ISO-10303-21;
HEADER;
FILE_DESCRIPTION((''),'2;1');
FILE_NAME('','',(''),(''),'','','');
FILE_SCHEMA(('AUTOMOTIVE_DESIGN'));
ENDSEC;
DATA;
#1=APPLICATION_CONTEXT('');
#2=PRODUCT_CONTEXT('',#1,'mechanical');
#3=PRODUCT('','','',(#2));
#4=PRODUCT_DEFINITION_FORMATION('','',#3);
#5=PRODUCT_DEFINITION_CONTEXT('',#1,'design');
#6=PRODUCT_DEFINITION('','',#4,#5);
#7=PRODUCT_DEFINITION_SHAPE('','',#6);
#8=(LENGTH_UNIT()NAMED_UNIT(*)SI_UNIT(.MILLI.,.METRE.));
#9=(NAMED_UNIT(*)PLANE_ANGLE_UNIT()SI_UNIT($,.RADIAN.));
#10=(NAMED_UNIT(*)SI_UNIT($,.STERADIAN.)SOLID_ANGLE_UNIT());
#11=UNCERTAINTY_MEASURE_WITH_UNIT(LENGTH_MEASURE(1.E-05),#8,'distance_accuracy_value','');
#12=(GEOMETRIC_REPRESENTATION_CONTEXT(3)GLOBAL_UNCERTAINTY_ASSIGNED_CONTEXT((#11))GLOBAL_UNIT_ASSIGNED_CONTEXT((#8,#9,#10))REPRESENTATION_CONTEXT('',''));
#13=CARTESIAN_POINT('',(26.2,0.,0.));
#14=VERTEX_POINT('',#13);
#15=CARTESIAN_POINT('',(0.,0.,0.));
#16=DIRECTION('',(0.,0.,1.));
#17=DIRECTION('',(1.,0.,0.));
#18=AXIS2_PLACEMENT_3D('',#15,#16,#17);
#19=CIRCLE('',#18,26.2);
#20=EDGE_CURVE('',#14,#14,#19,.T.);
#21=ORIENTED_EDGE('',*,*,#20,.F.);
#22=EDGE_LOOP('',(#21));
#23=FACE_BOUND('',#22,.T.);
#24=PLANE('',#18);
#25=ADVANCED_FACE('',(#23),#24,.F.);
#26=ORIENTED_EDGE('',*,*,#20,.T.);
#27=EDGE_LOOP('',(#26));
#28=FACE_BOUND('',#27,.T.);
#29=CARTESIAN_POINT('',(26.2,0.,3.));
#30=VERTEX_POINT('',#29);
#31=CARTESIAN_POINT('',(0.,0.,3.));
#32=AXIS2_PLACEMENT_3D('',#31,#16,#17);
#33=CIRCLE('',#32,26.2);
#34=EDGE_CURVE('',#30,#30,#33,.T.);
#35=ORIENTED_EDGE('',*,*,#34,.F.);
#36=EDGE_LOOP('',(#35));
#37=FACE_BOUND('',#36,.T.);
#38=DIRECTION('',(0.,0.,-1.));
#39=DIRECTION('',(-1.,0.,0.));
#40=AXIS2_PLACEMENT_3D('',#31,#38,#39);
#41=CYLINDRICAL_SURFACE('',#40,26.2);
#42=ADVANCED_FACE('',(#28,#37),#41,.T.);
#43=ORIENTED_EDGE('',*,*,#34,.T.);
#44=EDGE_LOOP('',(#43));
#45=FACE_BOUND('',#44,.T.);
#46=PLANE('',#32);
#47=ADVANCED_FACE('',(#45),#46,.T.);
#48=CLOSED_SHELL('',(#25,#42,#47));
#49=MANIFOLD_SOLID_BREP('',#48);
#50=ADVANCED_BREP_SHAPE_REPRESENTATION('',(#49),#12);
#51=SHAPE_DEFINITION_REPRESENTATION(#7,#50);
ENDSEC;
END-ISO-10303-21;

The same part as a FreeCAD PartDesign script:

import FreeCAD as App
import Part
import Sketcher
from FreeCAD import Vector
Q = App.Units.Quantity

doc = App.newDocument("Part")
body = doc.addObject("PartDesign::Body", "Body")

sketch1 = doc.addObject("Sketcher::SketchObject", "Sketch")
body.addObject(sketch1)
sketch1.AttachmentSupport = (doc.XY_Plane, [""])
sketch1.MapMode = "FlatFace"
sketch1.addGeometry(Part.Circle(Vector(0, 0, 0), Vector(0, 0, 1), 26), False)
sketch1.addConstraint(Sketcher.Constraint("Coincident", 0, 3, -1, 1))
sketch1.addConstraint(Sketcher.Constraint("Diameter", 0, Q("52.4 mm")))
pad1 = doc.addObject("PartDesign::Pad", "Pad")
body.addObject(pad1)
pad1.Profile = sketch1
pad1.Length = 3

doc.recompute()
